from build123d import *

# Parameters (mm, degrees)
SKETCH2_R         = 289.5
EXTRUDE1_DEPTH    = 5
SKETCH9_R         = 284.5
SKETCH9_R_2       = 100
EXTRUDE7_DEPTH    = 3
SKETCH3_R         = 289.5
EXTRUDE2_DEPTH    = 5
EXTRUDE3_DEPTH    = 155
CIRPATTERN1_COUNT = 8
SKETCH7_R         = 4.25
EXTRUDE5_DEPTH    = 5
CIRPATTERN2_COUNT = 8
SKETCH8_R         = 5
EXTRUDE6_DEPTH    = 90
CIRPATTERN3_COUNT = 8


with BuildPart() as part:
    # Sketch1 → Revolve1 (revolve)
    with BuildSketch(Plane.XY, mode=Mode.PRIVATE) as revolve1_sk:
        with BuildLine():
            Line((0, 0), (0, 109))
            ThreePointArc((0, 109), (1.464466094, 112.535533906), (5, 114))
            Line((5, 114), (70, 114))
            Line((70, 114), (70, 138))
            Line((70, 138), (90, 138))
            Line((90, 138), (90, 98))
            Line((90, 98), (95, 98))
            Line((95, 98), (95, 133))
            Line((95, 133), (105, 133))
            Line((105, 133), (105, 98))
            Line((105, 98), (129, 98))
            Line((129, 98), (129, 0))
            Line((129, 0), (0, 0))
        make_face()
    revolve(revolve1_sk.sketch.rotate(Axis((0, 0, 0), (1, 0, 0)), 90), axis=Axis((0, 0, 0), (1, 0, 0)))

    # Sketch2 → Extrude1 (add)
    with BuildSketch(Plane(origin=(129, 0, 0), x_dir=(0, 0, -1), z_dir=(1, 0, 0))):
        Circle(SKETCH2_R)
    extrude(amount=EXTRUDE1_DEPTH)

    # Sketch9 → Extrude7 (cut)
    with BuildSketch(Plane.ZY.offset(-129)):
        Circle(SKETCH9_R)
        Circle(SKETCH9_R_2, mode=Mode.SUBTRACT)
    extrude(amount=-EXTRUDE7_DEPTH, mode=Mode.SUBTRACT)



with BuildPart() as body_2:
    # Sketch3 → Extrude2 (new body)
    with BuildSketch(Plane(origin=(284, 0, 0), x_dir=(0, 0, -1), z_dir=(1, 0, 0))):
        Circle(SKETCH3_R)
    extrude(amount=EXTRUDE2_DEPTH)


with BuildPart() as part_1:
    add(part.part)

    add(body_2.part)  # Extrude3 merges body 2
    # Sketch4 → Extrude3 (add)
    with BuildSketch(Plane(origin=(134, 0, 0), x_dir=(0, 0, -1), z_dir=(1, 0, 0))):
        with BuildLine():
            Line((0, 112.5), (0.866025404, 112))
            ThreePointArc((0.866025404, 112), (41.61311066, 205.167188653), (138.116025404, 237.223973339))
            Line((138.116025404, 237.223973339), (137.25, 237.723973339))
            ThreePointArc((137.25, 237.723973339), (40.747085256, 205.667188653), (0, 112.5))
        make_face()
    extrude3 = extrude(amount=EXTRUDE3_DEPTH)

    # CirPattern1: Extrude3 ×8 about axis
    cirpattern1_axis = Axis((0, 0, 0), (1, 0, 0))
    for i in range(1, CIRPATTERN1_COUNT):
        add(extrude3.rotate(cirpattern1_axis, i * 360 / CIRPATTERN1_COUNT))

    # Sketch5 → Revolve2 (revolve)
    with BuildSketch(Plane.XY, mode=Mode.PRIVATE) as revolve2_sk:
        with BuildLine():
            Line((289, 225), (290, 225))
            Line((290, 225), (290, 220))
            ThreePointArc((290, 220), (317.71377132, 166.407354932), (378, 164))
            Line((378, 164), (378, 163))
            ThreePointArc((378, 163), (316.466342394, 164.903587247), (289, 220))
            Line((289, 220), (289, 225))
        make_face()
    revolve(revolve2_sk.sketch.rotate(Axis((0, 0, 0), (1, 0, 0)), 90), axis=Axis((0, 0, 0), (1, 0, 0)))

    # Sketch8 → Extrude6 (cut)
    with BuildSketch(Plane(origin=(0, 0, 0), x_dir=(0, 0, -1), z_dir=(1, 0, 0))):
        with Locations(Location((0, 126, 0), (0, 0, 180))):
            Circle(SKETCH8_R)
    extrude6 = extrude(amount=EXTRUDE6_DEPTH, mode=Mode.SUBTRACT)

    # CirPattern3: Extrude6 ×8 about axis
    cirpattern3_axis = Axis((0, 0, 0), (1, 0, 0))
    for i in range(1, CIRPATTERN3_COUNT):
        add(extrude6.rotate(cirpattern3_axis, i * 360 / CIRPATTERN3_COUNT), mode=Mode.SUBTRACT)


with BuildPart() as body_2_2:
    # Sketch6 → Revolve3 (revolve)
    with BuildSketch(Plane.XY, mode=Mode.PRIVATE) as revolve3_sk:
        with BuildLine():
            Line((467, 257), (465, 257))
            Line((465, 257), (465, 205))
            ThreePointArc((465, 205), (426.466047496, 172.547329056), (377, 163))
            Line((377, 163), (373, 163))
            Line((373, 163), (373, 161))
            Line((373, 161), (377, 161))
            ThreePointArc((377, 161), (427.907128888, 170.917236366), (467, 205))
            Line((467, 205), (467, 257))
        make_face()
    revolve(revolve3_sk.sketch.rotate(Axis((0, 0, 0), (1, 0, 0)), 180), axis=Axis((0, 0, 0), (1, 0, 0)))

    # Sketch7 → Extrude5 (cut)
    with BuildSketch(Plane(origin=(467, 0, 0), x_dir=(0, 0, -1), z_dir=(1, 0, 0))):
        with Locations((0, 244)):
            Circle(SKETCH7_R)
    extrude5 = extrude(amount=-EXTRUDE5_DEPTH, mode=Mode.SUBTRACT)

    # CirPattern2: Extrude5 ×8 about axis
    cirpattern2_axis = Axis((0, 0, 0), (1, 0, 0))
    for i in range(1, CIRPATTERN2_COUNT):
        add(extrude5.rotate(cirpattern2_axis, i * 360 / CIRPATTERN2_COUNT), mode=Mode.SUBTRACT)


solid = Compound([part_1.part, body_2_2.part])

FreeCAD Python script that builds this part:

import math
import FreeCAD as App
import Part
import Sketcher
Q = App.Units.Quantity

doc = App.newDocument("Part")
body = doc.addObject("PartDesign::Body", "Body")

# Sketch on XY plane
sketch1 = doc.addObject("Sketcher::SketchObject", "Sketch")
body.addObject(sketch1)
sketch1.AttachmentSupport = (doc.XY_Plane, [""])
sketch1.MapMode = "FlatFace"
sketch1.addGeometry(Part.LineSegment(App.Vector(0, 109, 0), App.Vector(0, 0, 0)), False)
sketch1.addGeometry(Part.LineSegment(App.Vector(0, 0, 0), App.Vector(129, 0, 0)), False)
sketch1.addGeometry(Part.LineSegment(App.Vector(129, 0, 0), App.Vector(129, 98, 0)), False)
sketch1.addGeometry(Part.LineSegment(App.Vector(129, 98, 0), App.Vector(105, 98, 0)), False)
sketch1.addGeometry(Part.LineSegment(App.Vector(105, 98, 0), App.Vector(105, 133, 0)), False)
sketch1.addGeometry(Part.LineSegment(App.Vector(105, 133, 0), App.Vector(95, 133, 0)), False)
sketch1.addGeometry(Part.LineSegment(App.Vector(95, 133, 0), App.Vector(95, 98, 0)), False)
sketch1.addGeometry(Part.LineSegment(App.Vector(95, 98, 0), App.Vector(90, 98, 0)), False)
sketch1.addGeometry(Part.LineSegment(App.Vector(90, 98, 0), App.Vector(90, 138, 0)), False)
sketch1.addGeometry(Part.LineSegment(App.Vector(90, 138, 0), App.Vector(70, 138, 0)), False)
sketch1.addGeometry(Part.LineSegment(App.Vector(70, 138, 0), App.Vector(70, 114, 0)), False)
sketch1.addGeometry(Part.LineSegment(App.Vector(70, 114, 0), App.Vector(5, 114, 0)), False)
sketch1.addGeometry(Part.ArcOfCircle(Part.Circle(App.Vector(5, 109, 0), App.Vector(0, 0, 1), 5), math.radians(90), math.radians(180)), False)
sketch1.addConstraint(Sketcher.Constraint("Coincident", 0, 2, 1, 1))
sketch1.addConstraint(Sketcher.Constraint("Coincident", 1, 2, 2, 1))
sketch1.addConstraint(Sketcher.Constraint("Coincident", 2, 2, 3, 1))
sketch1.addConstraint(Sketcher.Constraint("Coincident", 3, 2, 4, 1))
sketch1.addConstraint(Sketcher.Constraint("Coincident", 4, 2, 5, 1))
sketch1.addConstraint(Sketcher.Constraint("Coincident", 5, 2, 6, 1))
sketch1.addConstraint(Sketcher.Constraint("Coincident", 6, 2, 7, 1))
sketch1.addConstraint(Sketcher.Constraint("Coincident", 7, 2, 8, 1))
sketch1.addConstraint(Sketcher.Constraint("Coincident", 8, 2, 9, 1))
sketch1.addConstraint(Sketcher.Constraint("Coincident", 9, 2, 10, 1))
sketch1.addConstraint(Sketcher.Constraint("Coincident", 10, 2, 11, 1))
sketch1.addConstraint(Sketcher.Constraint("Tangent", 11, 2, 12, 1))
sketch1.addConstraint(Sketcher.Constraint("Tangent", 12, 2, 0, 1))
sketch1.addConstraint(Sketcher.Constraint("Vertical", 0))
sketch1.addConstraint(Sketcher.Constraint("Horizontal", 1))
sketch1.addConstraint(Sketcher.Constraint("Vertical", 2))
sketch1.addConstraint(Sketcher.Constraint("Horizontal", 3))
sketch1.addConstraint(Sketcher.Constraint("Vertical", 4))
sketch1.addConstraint(Sketcher.Constraint("Horizontal", 5))
sketch1.addConstraint(Sketcher.Constraint("Vertical", 6))
sketch1.addConstraint(Sketcher.Constraint("Horizontal", 7))
sketch1.addConstraint(Sketcher.Constraint("Vertical", 8))
sketch1.addConstraint(Sketcher.Constraint("Horizontal", 9))
sketch1.addConstraint(Sketcher.Constraint("Vertical", 10))
sketch1.addConstraint(Sketcher.Constraint("Horizontal", 11))
sketch1.addConstraint(Sketcher.Constraint("Coincident", 0, 2, -1, 1))
sketch1.addConstraint(Sketcher.Constraint("Horizontal", 3, 2, 6, 2))
sketch1.addConstraint(Sketcher.Constraint("Equal", 3, 10))
sketch1.addConstraint(Sketcher.Constraint("Radius", 12, 5.0))
sketch1.addConstraint(Sketcher.Constraint("DistanceX", 1, 1, 1, 2, 129.0))
sketch1.addConstraint(Sketcher.Constraint("DistanceX", 3, 2, 3, 1, 24.0))
sketch1.addConstraint(Sketcher.Constraint("DistanceX", 5, 2, 5, 1, 10.0))
sketch1.addConstraint(Sketcher.Constraint("DistanceX", 7, 2, 7, 1, 5.0))
sketch1.addConstraint(Sketcher.Constraint("DistanceX", 9, 2, 9, 1, 20.0))
sketch1.addConstraint(Sketcher.Constraint("DistanceY", 0, 2, 0, 1, 109.0))
sketch1.addConstraint(Sketcher.Constraint("DistanceY", 2, 1, 2, 2, 98.0))
sketch1.addConstraint(Sketcher.Constraint("DistanceY", 4, 1, 4, 2, 35.0))
revolution = doc.addObject("PartDesign::Revolution", "Revolution")
body.addObject(revolution)
revolution.Profile = sketch1
revolution.ReferenceAxis = (sketch1, ["H_Axis"])
revolution.Angle = 360

# Sketch on YZ plane
sketch2 = doc.addObject("Sketcher::SketchObject", "Sketch001")
body.addObject(sketch2)
sketch2.AttachmentSupport = (doc.YZ_Plane, [""])
sketch2.MapMode = "FlatFace"
sketch2.AttachmentOffset = App.Placement(App.Vector(0, 0, 129), App.Rotation())
sketch2.addGeometry(Part.Circle(App.Vector(0, 0, 0), App.Vector(0, 0, 1), 290), False)
sketch2.addConstraint(Sketcher.Constraint("Coincident", 0, 3, -1, 1))
sketch2.addConstraint(Sketcher.Constraint("Diameter", 0, 579.0))
pad1 = doc.addObject("PartDesign::Pad", "Pad")
body.addObject(pad1)
pad1.Profile = sketch2
pad1.Length = 5

# Sketch on YZ plane
sketch3 = doc.addObject("Sketcher::SketchObject", "Sketch002")
body.addObject(sketch3)
sketch3.AttachmentSupport = (doc.YZ_Plane, [""])
sketch3.MapMode = "FlatFace"
sketch3.AttachmentOffset = App.Placement(App.Vector(0, 0, 129), App.Rotation())
sketch3.addGeometry(Part.Circle(App.Vector(0, 0, 0), App.Vector(0, 0, 1), 284), False)
sketch3.addGeometry(Part.Circle(App.Vector(0, 0, 0), App.Vector(0, 0, 1), 100), False)
sketch3.addConstraint(Sketcher.Constraint("Coincident", 0, 3, -1, 1))
sketch3.addConstraint(Sketcher.Constraint("Coincident", 1, 3, -1, 1))
sketch3.addConstraint(Sketcher.Constraint("Diameter", 0, 569.0))
sketch3.addConstraint(Sketcher.Constraint("Diameter", 1, 200.0))
pocket1 = doc.addObject("PartDesign::Pocket", "Pocket")
body.addObject(pocket1)
pocket1.Profile = sketch3
pocket1.Length = 3
pocket1.Reversed = True
body2 = doc.addObject("PartDesign::Body", "Body001")

# Sketch on YZ plane
sketch4 = doc.addObject("Sketcher::SketchObject", "Sketch003")
body2.addObject(sketch4)
sketch4.AttachmentSupport = (doc.getObject("YZ_Plane001"), [""])
sketch4.MapMode = "FlatFace"
sketch4.AttachmentOffset = App.Placement(App.Vector(0, 0, 284), App.Rotation())
sketch4.addGeometry(Part.Circle(App.Vector(0, 0, 0), App.Vector(0, 0, 1), 290), False)
sketch4.addConstraint(Sketcher.Constraint("Coincident", 0, 3, -1, 1))
sketch4.addConstraint(Sketcher.Constraint("Diameter", 0, 579.0))
pad2 = doc.addObject("PartDesign::Pad", "Pad001")
body2.addObject(pad2)
pad2.Profile = sketch4
pad2.Length = 5
body.AllowCompound = True
doc.recompute()

boolean = doc.addObject("PartDesign::Boolean", "Boolean")
body.addObject(boolean)
boolean.Type = "Fuse"
boolean.addObjects([body2])

# Sketch on YZ plane
sketch5 = doc.addObject("Sketcher::SketchObject", "Sketch004")
body.addObject(sketch5)
sketch5.AttachmentSupport = (doc.YZ_Plane, [""])
sketch5.MapMode = "FlatFace"
sketch5.AttachmentOffset = App.Placement(App.Vector(0, 0, 134), App.Rotation())
sketch5.addGeometry(Part.LineSegment(App.Vector(112.5, 0, 0), App.Vector(112, -0.9, 0)), False)
sketch5.addGeometry(Part.ArcOfCircle(Part.Circle(App.Vector(112.8, -125.9, 0), App.Vector(0, 0, 1), 125), math.radians(-6), math.radians(90)), False)
sketch5.addGeometry(Part.LineSegment(App.Vector(237.2, -138.1, 0), App.Vector(237.7, -137.2, 0)), False)
sketch5.addGeometry(Part.ArcOfCircle(Part.Circle(App.Vector(113.3, -125, 0), App.Vector(0, 0, 1), 125), math.radians(-6), math.radians(90)), False)
sketch5.addConstraint(Sketcher.Constraint("Coincident", 0, 2, 1, 2))
sketch5.addConstraint(Sketcher.Constraint("Coincident", 1, 1, 2, 1))
sketch5.addConstraint(Sketcher.Constraint("Coincident", 2, 2, 3, 1))
sketch5.addConstraint(Sketcher.Constraint("Coincident", 3, 2, 0, 1))
sketch5.addConstraint(Sketcher.Constraint("Equal", 1, 3))
sketch5.addConstraint(Sketcher.Constraint("PointOnObject", 3, 2, -1))
sketch5.addConstraint(Sketcher.Constraint("Parallel", 0, 2))
sketch5.addConstraint(Sketcher.Constraint("Equal", 0, 2))
sketch5.addConstraint(Sketcher.Constraint("Radius", 1, 125.0))
sketch5.addConstraint(Sketcher.Constraint("Angle", 0, Q("-120 deg")))
sketch5.addConstraint(Sketcher.Constraint("Distance", 0, 1.0))
sketch5.addConstraint(Sketcher.Constraint("DistanceX", -1, 1, 0, 2, 112.0))
sketch5.addConstraint(Sketcher.Constraint("DistanceY", 2, 2, -1, 1, 137.25))
sketch5.addConstraint(Sketcher.Constraint("DistanceX", -1, 1, 1, 3, 112.82594))
pad3 = doc.addObject("PartDesign::Pad", "Pad002")
body.addObject(pad3)
pad3.Profile = sketch5
pad3.Length = 155
doc.recompute()

polarpattern = doc.addObject("PartDesign::PolarPattern", "PolarPattern")
body.addObject(polarpattern)
polarpattern.Originals = [pad3]
polarpattern.Axis = (doc.X_Axis, [""])
polarpattern.Angle = 360
polarpattern.Occurrences = 8
body.Tip = polarpattern

# Sketch on XY plane
sketch6 = doc.addObject("Sketcher::SketchObject", "Sketch005")
body.addObject(sketch6)
sketch6.AttachmentSupport = (doc.XY_Plane, [""])
sketch6.MapMode = "FlatFace"
sketch6.addGeometry(Part.LineSegment(App.Vector(290, 225, 0), App.Vector(289, 225, 0)), False)
sketch6.addGeometry(Part.LineSegment(App.Vector(289, 225, 0), App.Vector(289, 220, 0)), False)
sketch6.addGeometry(Part.ArcOfCircle(Part.Circle(App.Vector(348.8, 215.4, 0), App.Vector(0, 0, 1), 60), math.radians(176), math.radians(299)), False)
sketch6.addGeometry(Part.LineSegment(App.Vector(378, 163, 0), App.Vector(378, 164, 0)), False)
sketch6.addGeometry(Part.ArcOfCircle(Part.Circle(App.Vector(349.9, 217, 0), App.Vector(0, 0, 1), 60), math.radians(177), math.radians(298)), False)
sketch6.addGeometry(Part.LineSegment(App.Vector(290, 220, 0), App.Vector(290, 225, 0)), False)
sketch6.addConstraint(Sketcher.Constraint("Coincident", 0, 2, 1, 1))
sketch6.addConstraint(Sketcher.Constraint("Coincident", 1, 2, 2, 1))
sketch6.addConstraint(Sketcher.Constraint("Coincident", 2, 2, 3, 1))
sketch6.addConstraint(Sketcher.Constraint("Coincident", 3, 2, 4, 2))
sketch6.addConstraint(Sketcher.Constraint("Coincident", 4, 1, 5, 1))
sketch6.addConstraint(Sketcher.Constraint("Coincident", 5, 2, 0, 1))
sketch6.addConstraint(Sketcher.Constraint("Horizontal", 0))
sketch6.addConstraint(Sketcher.Constraint("Vertical", 1))
sketch6.addConstraint(Sketcher.Constraint("Vertical", 3))
sketch6.addConstraint(Sketcher.Constraint("Vertical", 5))
sketch6.addConstraint(Sketcher.Constraint("Equal", 2, 4))
sketch6.addConstraint(Sketcher.Constraint("Horizontal", 1, 2, 4, 1))
sketch6.addConstraint(Sketcher.Constraint("Equal", 0, 3))
sketch6.addConstraint(Sketcher.Constraint("Radius", 2, 60.0))
sketch6.addConstraint(Sketcher.Constraint("DistanceX", 0, 2, 0, 1, 1.0))
sketch6.addConstraint(Sketcher.Constraint("DistanceY", 1, 2, 1, 1, 5.0))
sketch6.addConstraint(Sketcher.Constraint("DistanceX", -1, 1, 0, 2, 289.0))
sketch6.addConstraint(Sketcher.Constraint("DistanceY", -1, 1, 0, 2, 225.0))
sketch6.addConstraint(Sketcher.Constraint("DistanceX", -1, 1, 2, 2, 378.0))
sketch6.addConstraint(Sketcher.Constraint("DistanceY", -1, 1, 2, 2, 163.0))
revolution2 = doc.addObject("PartDesign::Revolution", "Revolution001")
body.addObject(revolution2)
revolution2.Profile = sketch6
revolution2.ReferenceAxis = (sketch6, ["H_Axis"])
revolution2.Angle = 360

# Sketch on YZ plane
sketch7 = doc.addObject("Sketcher::SketchObject", "Sketch006")
body.addObject(sketch7)
sketch7.AttachmentSupport = (doc.YZ_Plane, [""])
sketch7.MapMode = "FlatFace"
sketch7.addGeometry(Part.Circle(App.Vector(126, 0, 0), App.Vector(0, 0, 1), 5), False)
sketch7.addConstraint(Sketcher.Constraint("PointOnObject", 0, 3, -1))
sketch7.addConstraint(Sketcher.Constraint("Diameter", 0, 10.0))
sketch7.addConstraint(Sketcher.Constraint("DistanceX", -1, 1, 0, 3, 126.0))
pocket2 = doc.addObject("PartDesign::Pocket", "Pocket001")
body.addObject(pocket2)
pocket2.Profile = sketch7
pocket2.Length = 90
pocket2.Reversed = True
doc.recompute()

polarpattern2 = doc.addObject("PartDesign::PolarPattern", "PolarPattern001")
body.addObject(polarpattern2)
polarpattern2.Originals = [pocket2]
polarpattern2.Axis = (doc.X_Axis, [""])
polarpattern2.Angle = 360
polarpattern2.Occurrences = 8
body.Tip = polarpattern2
body3 = doc.addObject("PartDesign::Body", "Body002")

# Sketch on XY plane
sketch8 = doc.addObject("Sketcher::SketchObject", "Sketch007")
body3.addObject(sketch8)
sketch8.AttachmentSupport = (doc.getObject("XY_Plane002"), [""])
sketch8.MapMode = "FlatFace"
sketch8.addGeometry(Part.LineSegment(App.Vector(467, 257, 0), App.Vector(465, 257, 0)), False)
sketch8.addGeometry(Part.LineSegment(App.Vector(465, 257, 0), App.Vector(465, 205, 0)), False)
sketch8.addGeometry(Part.ArcOfCircle(Part.Circle(App.Vector(383.4, 262.8, 0), App.Vector(0, 0, 1), 100), math.radians(-94), math.radians(-35)), False)
sketch8.addGeometry(Part.LineSegment(App.Vector(377, 163, 0), App.Vector(373, 163, 0)), False)
sketch8.addGeometry(Part.LineSegment(App.Vector(373, 163, 0), App.Vector(373, 161, 0)), False)
sketch8.addGeometry(Part.LineSegment(App.Vector(373, 161, 0), App.Vector(377, 161, 0)), False)
sketch8.addGeometry(Part.ArcOfCircle(Part.Circle(App.Vector(384, 260.8, 0), App.Vector(0, 0, 1), 100), math.radians(-94), math.radians(-34)), False)
sketch8.addGeometry(Part.LineSegment(App.Vector(467, 205, 0), App.Vector(467, 257, 0)), False)
sketch8.addConstraint(Sketcher.Constraint("Coincident", 0, 2, 1, 1))
sketch8.addConstraint(Sketcher.Constraint("Coincident", 1, 2, 2, 2))
sketch8.addConstraint(Sketcher.Constraint("Coincident", 2, 1, 3, 1))
sketch8.addConstraint(Sketcher.Constraint("Coincident", 3, 2, 4, 1))
sketch8.addConstraint(Sketcher.Constraint("Coincident", 4, 2, 5, 1))
sketch8.addConstraint(Sketcher.Constraint("Coincident", 5, 2, 6, 1))
sketch8.addConstraint(Sketcher.Constraint("Coincident", 6, 2, 7, 1))
sketch8.addConstraint(Sketcher.Constraint("Coincident", 7, 2, 0, 1))
sketch8.addConstraint(Sketcher.Constraint("Horizontal", 0))
sketch8.addConstraint(Sketcher.Constraint("Vertical", 1))
sketch8.addConstraint(Sketcher.Constraint("Horizontal", 3))
sketch8.addConstraint(Sketcher.Constraint("Vertical", 4))
sketch8.addConstraint(Sketcher.Constraint("Horizontal", 5))
sketch8.addConstraint(Sketcher.Constraint("Vertical", 7))
sketch8.addConstraint(Sketcher.Constraint("Equal", 2, 6))
sketch8.addConstraint(Sketcher.Constraint("Horizontal", 1, 2, 6, 2))
sketch8.addConstraint(Sketcher.Constraint("Vertical", 2, 1, 5, 2))
sketch8.addConstraint(Sketcher.Constraint("Equal", 0, 4))
sketch8.addConstraint(Sketcher.Constraint("Radius", 2, 100.0))
sketch8.addConstraint(Sketcher.Constraint("DistanceX", 0, 2, 0, 1, 2.0))
sketch8.addConstraint(Sketcher.Constraint("DistanceX", 3, 2, 3, 1, 4.0))
sketch8.addConstraint(Sketcher.Constraint("DistanceY", 1, 2, 1, 1, 52.0))
sketch8.addConstraint(Sketcher.Constraint("DistanceX", -1, 1, 0, 2, 465.0))
sketch8.addConstraint(Sketcher.Constraint("DistanceY", -1, 1, 0, 2, 257.0))
sketch8.addConstraint(Sketcher.Constraint("DistanceX", -1, 1, 2, 1, 377.0))
sketch8.addConstraint(Sketcher.Constraint("DistanceY", -1, 1, 2, 1, 163.0))
revolution3 = doc.addObject("PartDesign::Revolution", "Revolution002")
body3.addObject(revolution3)
revolution3.Profile = sketch8
revolution3.ReferenceAxis = (sketch8, ["H_Axis"])
revolution3.Angle = 360

# Sketch on YZ plane
sketch9 = doc.addObject("Sketcher::SketchObject", "Sketch008")
body3.addObject(sketch9)
sketch9.AttachmentSupport = (doc.getObject("YZ_Plane002"), [""])
sketch9.MapMode = "FlatFace"
sketch9.AttachmentOffset = App.Placement(App.Vector(0, 0, 467), App.Rotation())
sketch9.addGeometry(Part.Circle(App.Vector(244, 0, 0), App.Vector(0, 0, 1), 4.2), False)
sketch9.addConstraint(Sketcher.Constraint("PointOnObject", 0, 3, -1))
sketch9.addConstraint(Sketcher.Constraint("Diameter", 0, 8.5))
sketch9.addConstraint(Sketcher.Constraint("DistanceX", -1, 1, 0, 3, 244.0))
pocket3 = doc.addObject("PartDesign::Pocket", "Pocket002")
body3.addObject(pocket3)
pocket3.Profile = sketch9
pocket3.Length = 5
doc.recompute()

polarpattern3 = doc.addObject("PartDesign::PolarPattern", "PolarPattern002")
body3.addObject(polarpattern3)
polarpattern3.Originals = [pocket3]
polarpattern3.Axis = (doc.getObject("X_Axis002"), [""])
polarpattern3.Angle = 360
polarpattern3.Occurrences = 8
body3.Tip = polarpattern3

doc.recompute()
